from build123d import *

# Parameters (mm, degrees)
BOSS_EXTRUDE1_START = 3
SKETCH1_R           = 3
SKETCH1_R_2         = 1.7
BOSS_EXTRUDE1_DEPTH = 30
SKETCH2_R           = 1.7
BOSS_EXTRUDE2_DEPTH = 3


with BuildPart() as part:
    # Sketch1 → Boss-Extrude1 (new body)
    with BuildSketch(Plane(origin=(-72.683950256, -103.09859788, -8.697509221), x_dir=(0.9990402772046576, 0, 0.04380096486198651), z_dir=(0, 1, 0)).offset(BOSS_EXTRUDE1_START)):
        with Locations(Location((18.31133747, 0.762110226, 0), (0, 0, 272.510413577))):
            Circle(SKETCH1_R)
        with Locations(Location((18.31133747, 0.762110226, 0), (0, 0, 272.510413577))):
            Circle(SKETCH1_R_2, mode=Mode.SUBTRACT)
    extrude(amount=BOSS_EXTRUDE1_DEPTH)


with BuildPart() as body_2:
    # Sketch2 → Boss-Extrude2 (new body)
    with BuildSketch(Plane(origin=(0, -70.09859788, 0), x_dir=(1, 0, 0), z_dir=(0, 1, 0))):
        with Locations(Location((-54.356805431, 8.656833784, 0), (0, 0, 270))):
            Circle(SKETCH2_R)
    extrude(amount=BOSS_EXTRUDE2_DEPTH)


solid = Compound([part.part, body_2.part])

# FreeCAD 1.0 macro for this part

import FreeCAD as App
import Part
import Sketcher

V = App.Vector

doc = App.newDocument("Part")
body = doc.addObject("PartDesign::Body", "Body")

# Sketch on XZ plane
sketch1 = body.newObject("Sketcher::SketchObject", "Sketch")
sketch1.AttachmentSupport = (doc.getObject("XZ_Plane"), [""])
sketch1.MapMode = "FlatFace"
sketch1.AttachmentOffset = App.Placement(V(0, 0, 100.098598), App.Rotation())
sketch1.addGeometry(Part.Circle(V(-54.356805, -8.656834, 0), V(0, 0, 1), 3), False)
sketch1.addGeometry(Part.Circle(V(-54.356805, -8.656834, 0), V(0, 0, 1), 1.7), False)
sketch1.addConstraint(Sketcher.Constraint("Coincident", 1, 3, 0, 3))
sketch1.addConstraint(Sketcher.Constraint("Diameter", 0, 6.0))
sketch1.addConstraint(Sketcher.Constraint("Diameter", 1, 3.4))
sketch1.addConstraint(Sketcher.Constraint("DistanceX", 0, 3, -1, 1, 54.356805))
sketch1.addConstraint(Sketcher.Constraint("DistanceY", 0, 3, -1, 1, 8.656834))
pad1 = body.newObject("PartDesign::Pad", "Pad")
pad1.Profile = sketch1
pad1.Length = 30
pad1.Reversed = True
body2 = doc.addObject("PartDesign::Body", "Body001")

# Sketch on XZ plane
sketch2 = body2.newObject("Sketcher::SketchObject", "Sketch001")
sketch2.AttachmentSupport = (doc.getObject("XZ_Plane001"), [""])
sketch2.MapMode = "FlatFace"
sketch2.AttachmentOffset = App.Placement(V(0, 0, 70.098598), App.Rotation())
sketch2.addGeometry(Part.Circle(V(-54.356805, -8.656834, 0), V(0, 0, 1), 1.7), False)
sketch2.addConstraint(Sketcher.Constraint("Diameter", 0, 3.4))
sketch2.addConstraint(Sketcher.Constraint("DistanceX", 0, 3, -1, 1, 54.356805))
sketch2.addConstraint(Sketcher.Constraint("DistanceY", 0, 3, -1, 1, 8.656834))
pad2 = body2.newObject("PartDesign::Pad", "Pad001")
pad2.Profile = sketch2
pad2.Length = 3
pad2.Reversed = True

doc.recompute()
